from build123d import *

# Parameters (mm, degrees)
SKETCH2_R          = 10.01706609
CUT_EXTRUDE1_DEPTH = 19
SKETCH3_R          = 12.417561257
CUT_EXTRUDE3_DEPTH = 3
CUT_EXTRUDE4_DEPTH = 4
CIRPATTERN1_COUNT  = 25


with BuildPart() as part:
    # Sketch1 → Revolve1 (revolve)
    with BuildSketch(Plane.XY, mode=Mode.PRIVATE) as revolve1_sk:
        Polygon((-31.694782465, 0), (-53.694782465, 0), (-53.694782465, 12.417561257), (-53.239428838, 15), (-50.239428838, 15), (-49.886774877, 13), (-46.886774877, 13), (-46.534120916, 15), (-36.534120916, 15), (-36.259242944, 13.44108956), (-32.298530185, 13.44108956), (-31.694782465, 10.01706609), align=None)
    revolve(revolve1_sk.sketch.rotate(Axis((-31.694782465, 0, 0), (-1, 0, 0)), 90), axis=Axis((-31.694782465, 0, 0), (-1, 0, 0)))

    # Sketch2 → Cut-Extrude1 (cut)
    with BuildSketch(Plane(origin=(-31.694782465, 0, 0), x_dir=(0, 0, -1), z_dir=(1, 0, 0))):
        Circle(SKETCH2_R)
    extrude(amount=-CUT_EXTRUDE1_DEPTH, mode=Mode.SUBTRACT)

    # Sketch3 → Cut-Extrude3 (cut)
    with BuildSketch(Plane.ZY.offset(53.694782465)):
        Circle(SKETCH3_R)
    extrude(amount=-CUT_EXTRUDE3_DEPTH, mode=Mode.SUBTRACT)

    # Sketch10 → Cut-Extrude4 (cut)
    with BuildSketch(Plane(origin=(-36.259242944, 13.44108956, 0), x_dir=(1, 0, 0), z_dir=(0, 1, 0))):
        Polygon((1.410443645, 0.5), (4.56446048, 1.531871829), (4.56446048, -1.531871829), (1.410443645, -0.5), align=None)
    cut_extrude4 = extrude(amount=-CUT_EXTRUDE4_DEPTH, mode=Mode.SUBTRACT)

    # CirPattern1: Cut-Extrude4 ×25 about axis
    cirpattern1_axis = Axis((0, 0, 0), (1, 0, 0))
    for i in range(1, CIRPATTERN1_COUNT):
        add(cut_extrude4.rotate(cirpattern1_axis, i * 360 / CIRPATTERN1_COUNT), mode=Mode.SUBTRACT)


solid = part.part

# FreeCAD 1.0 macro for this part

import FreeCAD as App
import Part
import Sketcher

V = App.Vector
Q = App.Units.Quantity

doc = App.newDocument("Part")
params = doc.addObject("Spreadsheet::Sheet", "Params")
for row, (alias, value) in enumerate([
    ("sketch1_width", "22 mm"),
    ("sketch1_width2", "10 mm"),
    ("sketch1_width3", "3 mm"),
    ("revolution_angle", "360 deg"),
    ("pocket1_length", "19 mm"),
    ("pocket2_length", "3 mm"),
    ("sketch4_height", "1 mm"),
    ("pocket3_length", "4 mm"),
], start=1):
    params.set(f"A{row}", alias)
    params.set(f"B{row}", "=" + value)
    params.setAlias(f"B{row}", alias)

body = doc.addObject("PartDesign::Body", "Body")

# Sketch on XY plane
sketch1 = body.newObject("Sketcher::SketchObject", "Sketch")
sketch1.AttachmentSupport = (doc.getObject("XY_Plane"), [""])
sketch1.MapMode = "FlatFace"
sketch1.addGeometry(Part.LineSegment(V(-53.7, 0, 0), V(-31.7, 0, 0)), False)
sketch1.addGeometry(Part.LineSegment(V(-31.7, 0, 0), V(-31.7, 10, 0)), False)
sketch1.addGeometry(Part.LineSegment(V(-31.7, 10, 0), V(-32.3, 13.4, 0)), False)
sketch1.addGeometry(Part.LineSegment(V(-32.3, 13.4, 0), V(-36.3, 13.4, 0)), False)
sketch1.addGeometry(Part.LineSegment(V(-36.3, 13.4, 0), V(-36.5, 15, 0)), False)
sketch1.addGeometry(Part.LineSegment(V(-36.5, 15, 0), V(-46.5, 15, 0)), False)
sketch1.addGeometry(Part.LineSegment(V(-46.5, 15, 0), V(-46.9, 13, 0)), False)
sketch1.addGeometry(Part.LineSegment(V(-46.9, 13, 0), V(-49.9, 13, 0)), False)
sketch1.addGeometry(Part.LineSegment(V(-49.9, 13, 0), V(-50.2, 15, 0)), False)
sketch1.addGeometry(Part.LineSegment(V(-50.2, 15, 0), V(-53.2, 15, 0)), False)
sketch1.addGeometry(Part.LineSegment(V(-53.2, 15, 0), V(-53.7, 12.4, 0)), False)
sketch1.addGeometry(Part.LineSegment(V(-53.7, 12.4, 0), V(-53.7, 0, 0)), False)
sketch1.addConstraint(Sketcher.Constraint("Coincident", 0, 2, 1, 1))
sketch1.addConstraint(Sketcher.Constraint("Coincident", 1, 2, 2, 1))
sketch1.addConstraint(Sketcher.Constraint("Coincident", 2, 2, 3, 1))
sketch1.addConstraint(Sketcher.Constraint("Coincident", 3, 2, 4, 1))
sketch1.addConstraint(Sketcher.Constraint("Coincident", 4, 2, 5, 1))
sketch1.addConstraint(Sketcher.Constraint("Coincident", 5, 2, 6, 1))
sketch1.addConstraint(Sketcher.Constraint("Coincident", 6, 2, 7, 1))
sketch1.addConstraint(Sketcher.Constraint("Coincident", 7, 2, 8, 1))
sketch1.addConstraint(Sketcher.Constraint("Coincident", 8, 2, 9, 1))
sketch1.addConstraint(Sketcher.Constraint("Coincident", 9, 2, 10, 1))
sketch1.addConstraint(Sketcher.Constraint("Coincident", 10, 2, 11, 1))
sketch1.addConstraint(Sketcher.Constraint("Coincident", 11, 2, 0, 1))
sketch1.addConstraint(Sketcher.Constraint("Horizontal", 0))
sketch1.addConstraint(Sketcher.Constraint("Vertical", 1))
sketch1.addConstraint(Sketcher.Constraint("Horizontal", 3))
sketch1.addConstraint(Sketcher.Constraint("Horizontal", 5))
sketch1.addConstraint(Sketcher.Constraint("Horizontal", 7))
sketch1.addConstraint(Sketcher.Constraint("Horizontal", 9))
sketch1.addConstraint(Sketcher.Constraint("Vertical", 11))
sketch1.addConstraint(Sketcher.Constraint("PointOnObject", 0, 2, -1))
sketch1.addConstraint(Sketcher.Constraint("Parallel", 2, 4))
sketch1.addConstraint(Sketcher.Constraint("Parallel", 4, 8))
sketch1.addConstraint(Sketcher.Constraint("Parallel", 6, 10))
sketch1.addConstraint(Sketcher.Constraint("Horizontal", 5, 2, 8, 2))
sketch1.addConstraint(Sketcher.Constraint("Equal", 7, 9))
sketch1.addConstraint(Sketcher.Constraint("Equal", 6, 8))
sketch1.addConstraint(Sketcher.Constraint("DistanceX", 0, 1, 0, 2, 22.0))
sketch1.addConstraint(Sketcher.Constraint("DistanceX", 5, 2, 5, 1, 10.0))
sketch1.addConstraint(Sketcher.Constraint("DistanceX", 7, 2, 7, 1, 3.0))
sketch1.addConstraint(Sketcher.Constraint("Angle", 2, Q("100 deg")))
sketch1.addConstraint(Sketcher.Constraint("DistanceY", -1, 1, 4, 2, 15.0))
sketch1.addConstraint(Sketcher.Constraint("DistanceY", -1, 1, 6, 2, 13.0))
sketch1.addConstraint(Sketcher.Constraint("DistanceY", 11, 2, 11, 1, 12.417561))
sketch1.addConstraint(Sketcher.Constraint("Distance", 4, 1.582959))
sketch1.addConstraint(Sketcher.Constraint("DistanceX", 3, 2, 3, 1, 3.960713))
sketch1.addConstraint(Sketcher.Constraint("DistanceX", 2, 2, -1, 1, 32.29853))
sketch1.setExpression("Constraints[26]", "Params.sketch1_width")
sketch1.setExpression("Constraints[27]", "Params.sketch1_width2")
sketch1.setExpression("Constraints[28]", "Params.sketch1_width3")
revolution = body.newObject("PartDesign::Revolution", "Revolution")
revolution.Profile = sketch1
revolution.ReferenceAxis = (sketch1, ["H_Axis"])
revolution.setExpression("Angle", "Params.revolution_angle")

# Sketch on YZ plane
sketch2 = body.newObject("Sketcher::SketchObject", "Sketch001")
sketch2.AttachmentSupport = (doc.getObject("YZ_Plane"), [""])
sketch2.MapMode = "FlatFace"
sketch2.AttachmentOffset = App.Placement(V(0, 0, -31.694782), App.Rotation())
sketch2.addGeometry(Part.Circle(V(0, 0, 0), V(0, 0, 1), 10), False)
sketch2.addConstraint(Sketcher.Constraint("Coincident", 0, 3, -1, 1))
sketch2.addConstraint(Sketcher.Constraint("Diameter", 0, 20.034132))
pocket1 = body.newObject("PartDesign::Pocket", "Pocket")
pocket1.Profile = sketch2
pocket1.setExpression("Length", "Params.pocket1_length")

# Sketch on YZ plane
sketch3 = body.newObject("Sketcher::SketchObject", "Sketch002")
sketch3.AttachmentSupport = (doc.getObject("YZ_Plane"), [""])
sketch3.MapMode = "FlatFace"
sketch3.AttachmentOffset = App.Placement(V(0, 0, -53.694782), App.Rotation())
sketch3.addGeometry(Part.Circle(V(0, 0, 0), V(0, 0, 1), 12), False)
sketch3.addConstraint(Sketcher.Constraint("Coincident", 0, 3, -1, 1))
sketch3.addConstraint(Sketcher.Constraint("Diameter", 0, 24.835123))
pocket2 = body.newObject("PartDesign::Pocket", "Pocket001")
pocket2.Profile = sketch3
pocket2.setExpression("Length", "Params.pocket2_length")
pocket2.Reversed = True

# Sketch on XZ plane
sketch4 = body.newObject("Sketcher::SketchObject", "Sketch003")
sketch4.AttachmentSupport = (doc.getObject("XZ_Plane"), [""])
sketch4.MapMode = "FlatFace"
sketch4.AttachmentOffset = App.Placement(V(0, 0, -13.44109), App.Rotation())
sketch4.addGeometry(Part.LineSegment(V(-31.7, -1.5, 0), V(-34.8, -0.5, 0)), False)
sketch4.addGeometry(Part.LineSegment(V(-34.8, -0.5, 0), V(-34.8, 0.5, 0)), False)
sketch4.addGeometry(Part.LineSegment(V(-34.8, 0.5, 0), V(-31.7, 1.5, 0)), False)
sketch4.addGeometry(Part.LineSegment(V(-31.7, 1.5, 0), V(-31.7, -1.5, 0)), False)
sketch4.addConstraint(Sketcher.Constraint("Coincident", 0, 2, 1, 1))
sketch4.addConstraint(Sketcher.Constraint("Coincident", 1, 2, 2, 1))
sketch4.addConstraint(Sketcher.Constraint("Coincident", 2, 2, 3, 1))
sketch4.addConstraint(Sketcher.Constraint("Coincident", 3, 2, 0, 1))
sketch4.addConstraint(Sketcher.Constraint("Vertical", 1))
sketch4.addConstraint(Sketcher.Constraint("Vertical", 3))
sketch4.addConstraint(Sketcher.Constraint("Equal", 0, 2))
sketch4.addConstraint(Sketcher.Constraint("DistanceY", 1, 1, 1, 2, 1.0))
sketch4.addConstraint(Sketcher.Constraint("DistanceY", 0, 2, -1, 1, 0.5))
sketch4.addConstraint(Sketcher.Constraint("DistanceX", 0, 2, -1, 1, 34.848799))
sketch4.addConstraint(Sketcher.Constraint("Distance", 0, 3.318521))
sketch4.addConstraint(Sketcher.Constraint("DistanceY", 3, 2, 3, 1, 3.063744))
sketch4.setExpression("Constraints[7]", "Params.sketch4_height")
pocket3 = body.newObject("PartDesign::Pocket", "Pocket002")
pocket3.Profile = sketch4
pocket3.setExpression("Length", "Params.pocket3_length")
pocket3.Reversed = True
doc.recompute()

polarpattern = body.newObject("PartDesign::PolarPattern", "PolarPattern")
polarpattern.Originals = [pocket3]
polarpattern.Axis = (doc.getObject("X_Axis"), [""])
polarpattern.Angle = 360
polarpattern.Occurrences = 25
body.Tip = polarpattern

doc.recompute()
